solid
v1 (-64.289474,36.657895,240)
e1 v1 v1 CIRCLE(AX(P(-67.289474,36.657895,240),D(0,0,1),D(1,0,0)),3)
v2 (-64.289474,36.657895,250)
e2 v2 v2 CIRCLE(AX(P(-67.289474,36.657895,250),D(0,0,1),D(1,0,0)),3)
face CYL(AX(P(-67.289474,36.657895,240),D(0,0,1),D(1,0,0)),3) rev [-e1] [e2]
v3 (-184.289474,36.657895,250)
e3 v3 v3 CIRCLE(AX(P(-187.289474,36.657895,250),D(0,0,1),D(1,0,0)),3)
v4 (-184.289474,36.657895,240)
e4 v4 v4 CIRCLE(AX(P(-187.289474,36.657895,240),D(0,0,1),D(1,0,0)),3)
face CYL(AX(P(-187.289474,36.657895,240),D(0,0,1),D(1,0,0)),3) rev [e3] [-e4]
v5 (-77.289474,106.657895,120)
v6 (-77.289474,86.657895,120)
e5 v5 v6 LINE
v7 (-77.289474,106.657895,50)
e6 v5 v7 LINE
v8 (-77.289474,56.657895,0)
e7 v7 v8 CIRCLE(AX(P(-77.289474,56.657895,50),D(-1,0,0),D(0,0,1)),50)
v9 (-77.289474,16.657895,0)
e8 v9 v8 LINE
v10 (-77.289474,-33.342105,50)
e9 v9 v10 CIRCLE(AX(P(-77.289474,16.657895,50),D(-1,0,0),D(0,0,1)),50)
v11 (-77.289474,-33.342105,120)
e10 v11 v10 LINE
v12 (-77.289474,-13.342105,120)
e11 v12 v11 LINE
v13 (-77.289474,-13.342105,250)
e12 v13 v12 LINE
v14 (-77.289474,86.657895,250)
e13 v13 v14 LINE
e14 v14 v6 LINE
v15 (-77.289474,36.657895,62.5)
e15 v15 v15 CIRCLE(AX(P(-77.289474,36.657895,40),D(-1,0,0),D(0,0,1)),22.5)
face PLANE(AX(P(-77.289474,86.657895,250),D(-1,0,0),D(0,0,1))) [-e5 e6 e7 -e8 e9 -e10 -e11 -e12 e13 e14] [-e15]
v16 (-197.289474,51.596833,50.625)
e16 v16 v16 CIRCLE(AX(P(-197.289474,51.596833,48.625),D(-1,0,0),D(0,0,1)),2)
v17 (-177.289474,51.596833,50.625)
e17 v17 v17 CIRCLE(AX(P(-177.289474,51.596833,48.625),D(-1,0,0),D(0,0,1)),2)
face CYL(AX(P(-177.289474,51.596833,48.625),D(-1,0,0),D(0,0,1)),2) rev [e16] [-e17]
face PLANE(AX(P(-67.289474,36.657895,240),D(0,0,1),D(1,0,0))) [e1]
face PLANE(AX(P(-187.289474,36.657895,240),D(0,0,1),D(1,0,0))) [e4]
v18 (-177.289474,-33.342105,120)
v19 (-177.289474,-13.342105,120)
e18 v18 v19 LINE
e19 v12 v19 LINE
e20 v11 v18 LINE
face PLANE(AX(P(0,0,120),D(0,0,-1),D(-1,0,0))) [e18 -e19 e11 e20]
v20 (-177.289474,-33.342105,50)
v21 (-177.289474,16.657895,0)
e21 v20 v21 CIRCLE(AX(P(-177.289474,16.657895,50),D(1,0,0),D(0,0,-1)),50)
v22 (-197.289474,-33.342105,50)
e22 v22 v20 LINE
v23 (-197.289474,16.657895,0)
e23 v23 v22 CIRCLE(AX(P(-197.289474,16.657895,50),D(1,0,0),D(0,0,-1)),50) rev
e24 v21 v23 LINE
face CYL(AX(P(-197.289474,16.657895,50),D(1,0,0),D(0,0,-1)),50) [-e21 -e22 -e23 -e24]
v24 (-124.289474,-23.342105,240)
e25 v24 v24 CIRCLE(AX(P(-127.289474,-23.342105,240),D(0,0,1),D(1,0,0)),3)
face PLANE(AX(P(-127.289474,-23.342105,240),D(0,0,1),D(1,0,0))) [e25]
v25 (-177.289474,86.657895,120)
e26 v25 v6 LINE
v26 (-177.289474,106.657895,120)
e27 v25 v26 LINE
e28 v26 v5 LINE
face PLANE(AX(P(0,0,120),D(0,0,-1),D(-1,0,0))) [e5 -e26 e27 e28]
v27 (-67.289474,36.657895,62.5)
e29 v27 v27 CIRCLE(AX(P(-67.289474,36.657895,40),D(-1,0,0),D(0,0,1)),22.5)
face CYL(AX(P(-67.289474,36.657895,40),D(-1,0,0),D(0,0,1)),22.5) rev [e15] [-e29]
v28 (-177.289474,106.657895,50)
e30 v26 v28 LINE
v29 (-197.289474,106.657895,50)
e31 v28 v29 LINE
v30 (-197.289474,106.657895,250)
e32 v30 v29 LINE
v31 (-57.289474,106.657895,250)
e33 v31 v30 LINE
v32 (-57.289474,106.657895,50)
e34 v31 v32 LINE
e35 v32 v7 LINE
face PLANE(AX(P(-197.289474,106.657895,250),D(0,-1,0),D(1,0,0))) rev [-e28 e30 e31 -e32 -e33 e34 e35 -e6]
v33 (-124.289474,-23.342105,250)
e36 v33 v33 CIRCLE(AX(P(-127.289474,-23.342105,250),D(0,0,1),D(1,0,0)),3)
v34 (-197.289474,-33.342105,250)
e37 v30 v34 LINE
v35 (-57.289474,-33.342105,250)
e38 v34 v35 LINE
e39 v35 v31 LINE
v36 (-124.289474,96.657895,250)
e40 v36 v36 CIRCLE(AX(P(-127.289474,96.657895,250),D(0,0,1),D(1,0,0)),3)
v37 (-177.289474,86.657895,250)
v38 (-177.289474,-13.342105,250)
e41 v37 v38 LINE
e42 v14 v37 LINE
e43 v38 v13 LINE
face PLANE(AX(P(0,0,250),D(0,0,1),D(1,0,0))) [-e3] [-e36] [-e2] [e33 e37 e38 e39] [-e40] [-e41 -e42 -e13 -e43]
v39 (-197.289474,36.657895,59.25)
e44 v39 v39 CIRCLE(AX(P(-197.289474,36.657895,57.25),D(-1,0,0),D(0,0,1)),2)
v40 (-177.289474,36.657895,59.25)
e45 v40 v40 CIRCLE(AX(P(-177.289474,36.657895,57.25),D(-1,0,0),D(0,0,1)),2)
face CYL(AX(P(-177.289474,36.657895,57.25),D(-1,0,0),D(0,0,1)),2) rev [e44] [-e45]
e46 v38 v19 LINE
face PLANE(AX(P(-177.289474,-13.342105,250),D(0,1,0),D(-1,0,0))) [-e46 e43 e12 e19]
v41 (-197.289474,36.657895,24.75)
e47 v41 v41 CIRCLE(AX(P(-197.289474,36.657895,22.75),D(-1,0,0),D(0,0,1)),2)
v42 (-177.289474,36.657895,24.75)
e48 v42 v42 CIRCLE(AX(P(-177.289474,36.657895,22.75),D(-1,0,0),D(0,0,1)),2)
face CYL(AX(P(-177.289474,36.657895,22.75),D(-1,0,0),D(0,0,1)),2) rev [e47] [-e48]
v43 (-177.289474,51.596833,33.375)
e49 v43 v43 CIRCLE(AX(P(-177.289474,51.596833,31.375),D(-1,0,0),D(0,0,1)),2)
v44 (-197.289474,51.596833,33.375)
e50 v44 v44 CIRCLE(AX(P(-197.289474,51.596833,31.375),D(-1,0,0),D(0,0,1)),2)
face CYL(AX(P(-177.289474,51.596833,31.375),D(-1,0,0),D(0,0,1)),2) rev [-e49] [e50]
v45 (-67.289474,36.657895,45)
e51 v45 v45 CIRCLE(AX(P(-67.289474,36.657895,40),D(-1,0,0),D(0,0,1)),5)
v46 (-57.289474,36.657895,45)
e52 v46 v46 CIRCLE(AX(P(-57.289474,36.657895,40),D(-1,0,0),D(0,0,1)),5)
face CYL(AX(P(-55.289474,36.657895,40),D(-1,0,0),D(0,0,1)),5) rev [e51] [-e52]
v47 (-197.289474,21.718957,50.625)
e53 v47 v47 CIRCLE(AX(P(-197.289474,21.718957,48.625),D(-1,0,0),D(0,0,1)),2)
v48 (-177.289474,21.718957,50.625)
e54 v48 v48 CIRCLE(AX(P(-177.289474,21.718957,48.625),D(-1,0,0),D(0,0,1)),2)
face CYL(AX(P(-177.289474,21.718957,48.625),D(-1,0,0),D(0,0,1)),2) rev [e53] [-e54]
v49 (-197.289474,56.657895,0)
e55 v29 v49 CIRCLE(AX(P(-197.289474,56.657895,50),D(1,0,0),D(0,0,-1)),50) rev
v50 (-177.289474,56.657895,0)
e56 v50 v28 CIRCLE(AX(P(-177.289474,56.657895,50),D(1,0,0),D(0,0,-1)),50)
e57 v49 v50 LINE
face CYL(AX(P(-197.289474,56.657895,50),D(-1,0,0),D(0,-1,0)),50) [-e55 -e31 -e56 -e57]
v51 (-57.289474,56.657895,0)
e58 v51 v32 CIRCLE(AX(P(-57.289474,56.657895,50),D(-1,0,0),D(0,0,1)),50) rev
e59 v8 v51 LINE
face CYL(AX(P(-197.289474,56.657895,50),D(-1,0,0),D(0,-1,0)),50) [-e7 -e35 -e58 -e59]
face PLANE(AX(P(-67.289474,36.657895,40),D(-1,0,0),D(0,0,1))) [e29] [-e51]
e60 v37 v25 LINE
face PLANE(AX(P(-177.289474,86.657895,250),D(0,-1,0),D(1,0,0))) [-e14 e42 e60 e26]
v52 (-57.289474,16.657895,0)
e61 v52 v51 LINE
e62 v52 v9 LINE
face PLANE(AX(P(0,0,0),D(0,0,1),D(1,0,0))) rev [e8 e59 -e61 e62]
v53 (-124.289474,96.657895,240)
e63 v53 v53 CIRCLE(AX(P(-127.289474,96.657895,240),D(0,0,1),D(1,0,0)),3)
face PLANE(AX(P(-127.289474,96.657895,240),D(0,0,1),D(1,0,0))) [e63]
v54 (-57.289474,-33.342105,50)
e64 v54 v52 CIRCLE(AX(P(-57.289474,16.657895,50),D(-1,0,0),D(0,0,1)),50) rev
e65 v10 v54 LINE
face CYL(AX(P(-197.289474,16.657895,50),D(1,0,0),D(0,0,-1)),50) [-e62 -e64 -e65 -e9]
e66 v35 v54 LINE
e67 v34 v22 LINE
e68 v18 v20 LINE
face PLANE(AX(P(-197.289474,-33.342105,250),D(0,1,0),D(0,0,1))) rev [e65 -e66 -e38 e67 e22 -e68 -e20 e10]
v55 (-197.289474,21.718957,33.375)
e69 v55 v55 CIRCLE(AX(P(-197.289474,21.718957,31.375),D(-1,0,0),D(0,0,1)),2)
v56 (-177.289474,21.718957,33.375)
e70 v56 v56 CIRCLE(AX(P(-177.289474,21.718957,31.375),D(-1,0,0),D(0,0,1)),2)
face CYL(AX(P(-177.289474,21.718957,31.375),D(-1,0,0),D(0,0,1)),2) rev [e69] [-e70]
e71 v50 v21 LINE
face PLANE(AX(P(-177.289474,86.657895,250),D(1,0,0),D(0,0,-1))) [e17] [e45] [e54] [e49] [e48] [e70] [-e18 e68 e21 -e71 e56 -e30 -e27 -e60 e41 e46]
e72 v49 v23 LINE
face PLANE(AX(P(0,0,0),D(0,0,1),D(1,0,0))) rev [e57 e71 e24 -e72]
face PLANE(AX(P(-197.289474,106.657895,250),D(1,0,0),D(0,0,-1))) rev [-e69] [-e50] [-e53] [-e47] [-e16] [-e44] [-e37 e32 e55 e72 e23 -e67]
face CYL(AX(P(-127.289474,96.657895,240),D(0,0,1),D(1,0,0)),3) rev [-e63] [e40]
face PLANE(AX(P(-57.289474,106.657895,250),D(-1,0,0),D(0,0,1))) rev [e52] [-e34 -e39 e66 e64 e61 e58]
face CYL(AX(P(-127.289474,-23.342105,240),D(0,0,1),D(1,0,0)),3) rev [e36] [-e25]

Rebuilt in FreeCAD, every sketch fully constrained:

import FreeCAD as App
import Part
import Sketcher


def edges_at(feature, points):
    """Names of the edges that pass closest to the given points."""
    edges = feature.Shape.Edges
    near = lambda p: min(range(len(edges)), key=lambda i: edges[i].distToShape(Part.Vertex(*p))[0])
    return sorted({f"Edge{near(p) + 1}" for p in points})

doc = App.newDocument("Part")
params = doc.addObject("Spreadsheet::Sheet", "Params")
for row, (alias, value) in enumerate([
    ("sketch1_width", "140 mm"),
    ("sketch1_width2", "100 mm"),
    ("pad1_length", "250 mm"),
    ("sketch2_width", "100 mm"),
    ("sketch2_height", "140 mm"),
    ("pocket1_length", "120 mm"),
    ("sketch3_diameter", "6 mm"),
    ("pocket2_length", "10 mm"),
    ("sketch4_diameter", "4 mm"),
    ("pocket3_length", "20 mm"),
    ("fillet_radius", "50 mm"),
    ("sketch5_diameter", "45 mm"),
    ("pocket4_length", "10 mm"),
    ("sketch6_diameter", "10 mm"),
    ("pocket5_length", "12 mm"),
], start=1):
    params.set(f"A{row}", alias)
    params.set(f"B{row}", "=" + value)
    params.setAlias(f"B{row}", alias)

body = doc.addObject("PartDesign::Body", "Body")

# Sketch on XY plane
sketch1 = doc.addObject("Sketcher::SketchObject", "Sketch")
body.addObject(sketch1)
sketch1.AttachmentSupport = (doc.XY_Plane, [""])
sketch1.MapMode = "FlatFace"
sketch1.addGeometry(Part.LineSegment(App.Vector(-197, 107, 0), App.Vector(-197, -33, 0)), False)
sketch1.addGeometry(Part.LineSegment(App.Vector(-197, -33, 0), App.Vector(-57, -33, 0)), False)
sketch1.addGeometry(Part.LineSegment(App.Vector(-57, -33, 0), App.Vector(-57, 107, 0)), False)
sketch1.addGeometry(Part.LineSegment(App.Vector(-57, 107, 0), App.Vector(-197, 107, 0)), False)
sketch1.addGeometry(Part.LineSegment(App.Vector(-77, -13, 0), App.Vector(-177, -13, 0)), False)
sketch1.addGeometry(Part.LineSegment(App.Vector(-177, -13, 0), App.Vector(-177, 87, 0)), False)
sketch1.addGeometry(Part.LineSegment(App.Vector(-177, 87, 0), App.Vector(-77, 87, 0)), False)
sketch1.addGeometry(Part.LineSegment(App.Vector(-77, 87, 0), App.Vector(-77, -13, 0)), False)
sketch1.addConstraint(Sketcher.Constraint("Coincident", 0, 2, 1, 1))
sketch1.addConstraint(Sketcher.Constraint("Coincident", 1, 2, 2, 1))
sketch1.addConstraint(Sketcher.Constraint("Coincident", 2, 2, 3, 1))
sketch1.addConstraint(Sketcher.Constraint("Coincident", 3, 2, 0, 1))
sketch1.addConstraint(Sketcher.Constraint("Coincident", 4, 2, 5, 1))
sketch1.addConstraint(Sketcher.Constraint("Coincident", 5, 2, 6, 1))
sketch1.addConstraint(Sketcher.Constraint("Coincident", 6, 2, 7, 1))
sketch1.addConstraint(Sketcher.Constraint("Coincident", 7, 2, 4, 1))
sketch1.addConstraint(Sketcher.Constraint("Vertical", 0))
sketch1.addConstraint(Sketcher.Constraint("Horizontal", 1))
sketch1.addConstraint(Sketcher.Constraint("Vertical", 2))
sketch1.addConstraint(Sketcher.Constraint("Horizontal", 3))
sketch1.addConstraint(Sketcher.Constraint("Horizontal", 4))
sketch1.addConstraint(Sketcher.Constraint("Vertical", 5))
sketch1.addConstraint(Sketcher.Constraint("Horizontal", 6))
sketch1.addConstraint(Sketcher.Constraint("Vertical", 7))
sketch1.addConstraint(Sketcher.Constraint("Equal", 3, 0))
sketch1.addConstraint(Sketcher.Constraint("Equal", 6, 5))
sketch1.addConstraint(Sketcher.Constraint("DistanceX", 1, 1, 1, 2, 140.0))
sketch1.addConstraint(Sketcher.Constraint("DistanceX", 4, 2, 4, 1, 100.0))
sketch1.addConstraint(Sketcher.Constraint("DistanceX", 0, 2, 4, 2, 20.0))
sketch1.addConstraint(Sketcher.Constraint("DistanceY", 0, 2, 4, 2, 20.0))
sketch1.addConstraint(Sketcher.Constraint("DistanceX", 0, 2, -1, 1, 197.289474))
sketch1.addConstraint(Sketcher.Constraint("DistanceY", 0, 2, -1, 1, 33.342105))
sketch1.setExpression("Constraints[18]", "Params.sketch1_width")
sketch1.setExpression("Constraints[19]", "Params.sketch1_width2")
pad1 = doc.addObject("PartDesign::Pad", "Pad")
body.addObject(pad1)
pad1.Profile = sketch1
pad1.setExpression("Length", "Params.pad1_length")

# Sketch on XY plane
sketch2 = doc.addObject("Sketcher::SketchObject", "Sketch001")
body.addObject(sketch2)
sketch2.AttachmentSupport = (doc.XY_Plane, [""])
sketch2.MapMode = "FlatFace"
sketch2.addGeometry(Part.LineSegment(App.Vector(-77, 107, 0), App.Vector(-77, -33, 0)), False)
sketch2.addGeometry(Part.LineSegment(App.Vector(-77, -33, 0), App.Vector(-177, -33, 0)), False)
sketch2.addGeometry(Part.LineSegment(App.Vector(-177, -33, 0), App.Vector(-177, 107, 0)), False)
sketch2.addGeometry(Part.LineSegment(App.Vector(-177, 107, 0), App.Vector(-77, 107, 0)), False)
sketch2.addConstraint(Sketcher.Constraint("Coincident", 0, 2, 1, 1))
sketch2.addConstraint(Sketcher.Constraint("Coincident", 1, 2, 2, 1))
sketch2.addConstraint(Sketcher.Constraint("Coincident", 2, 2, 3, 1))
sketch2.addConstraint(Sketcher.Constraint("Coincident", 3, 2, 0, 1))
sketch2.addConstraint(Sketcher.Constraint("Vertical", 0))
sketch2.addConstraint(Sketcher.Constraint("Horizontal", 1))
sketch2.addConstraint(Sketcher.Constraint("Vertical", 2))
sketch2.addConstraint(Sketcher.Constraint("Horizontal", 3))
sketch2.addConstraint(Sketcher.Constraint("DistanceX", 1, 2, 1, 1, 100.0))
sketch2.addConstraint(Sketcher.Constraint("DistanceY", 0, 2, 0, 1, 140.0))
sketch2.addConstraint(Sketcher.Constraint("DistanceX", 0, 2, -1, 1, 77.289474))
sketch2.addConstraint(Sketcher.Constraint("DistanceY", 0, 2, -1, 1, 33.342105))
sketch2.setExpression("Constraints[8]", "Params.sketch2_width")
sketch2.setExpression("Constraints[9]", "Params.sketch2_height")
pocket1 = doc.addObject("PartDesign::Pocket", "Pocket")
body.addObject(pocket1)
pocket1.Profile = sketch2
pocket1.setExpression("Length", "Params.pocket1_length")
pocket1.Reversed = True

# Sketch on XY plane
sketch3 = doc.addObject("Sketcher::SketchObject", "Sketch002")
body.addObject(sketch3)
sketch3.AttachmentSupport = (doc.XY_Plane, [""])
sketch3.MapMode = "FlatFace"
sketch3.AttachmentOffset = App.Placement(App.Vector(0, 0, 250), App.Rotation())
sketch3.addGeometry(Part.Circle(App.Vector(-127.3, 36.7, 0), App.Vector(0, 0, 1), 15.7), False)
sketch3.addGeometry(Part.Circle(App.Vector(-187.3, 36.7, 0), App.Vector(0, 0, 1), 3), False)
sketch3.addGeometry(Part.Circle(App.Vector(-127.3, 96.7, 0), App.Vector(0, 0, 1), 3), False)
sketch3.addGeometry(Part.Circle(App.Vector(-67.3, 36.7, 0), App.Vector(0, 0, 1), 3), False)
sketch3.addGeometry(Part.Circle(App.Vector(-127.3, -23.3, 0), App.Vector(0, 0, 1), 3), False)
sketch3.addConstraint(Sketcher.Constraint("Equal", 1, 2))
sketch3.addConstraint(Sketcher.Constraint("Equal", 2, 3))
sketch3.addConstraint(Sketcher.Constraint("Equal", 3, 4))
sketch3.addConstraint(Sketcher.Constraint("Horizontal", 0, 3, 1, 3))
sketch3.addConstraint(Sketcher.Constraint("Horizontal", 1, 3, 3, 3))
sketch3.addConstraint(Sketcher.Constraint("Vertical", 0, 3, 2, 3))
sketch3.addConstraint(Sketcher.Constraint("Vertical", 2, 3, 4, 3))
sketch3.addConstraint(Sketcher.Constraint("Diameter", 1, 6.0))
sketch3.addConstraint(Sketcher.Constraint("DistanceX", 1, 3, 0, 3, 60.0))
sketch3.addConstraint(Sketcher.Constraint("DistanceY", 0, 3, 2, 3, 60.0))
sketch3.addConstraint(Sketcher.Constraint("DistanceX", 0, 3, 3, 3, 60.0))
sketch3.addConstraint(Sketcher.Constraint("DistanceY", 4, 3, 0, 3, 60.0))
sketch3.addConstraint(Sketcher.Constraint("Diameter", 0, 31.408742))
sketch3.addConstraint(Sketcher.Constraint("DistanceX", 0, 3, -1, 1, 127.289474))
sketch3.addConstraint(Sketcher.Constraint("DistanceY", -1, 1, 0, 3, 36.657895))
sketch3.setExpression("Constraints[7]", "Params.sketch3_diameter")
pocket2 = doc.addObject("PartDesign::Pocket", "Pocket001")
body.addObject(pocket2)
pocket2.Profile = sketch3
pocket2.setExpression("Length", "Params.pocket2_length")

# Sketch on YZ plane
sketch4 = doc.addObject("Sketcher::SketchObject", "Sketch003")
body.addObject(sketch4)
sketch4.AttachmentSupport = (doc.YZ_Plane, [""])
sketch4.MapMode = "FlatFace"
sketch4.AttachmentOffset = App.Placement(App.Vector(0, 0, -197.289474), App.Rotation())
sketch4.addGeometry(Part.Circle(App.Vector(36.7, 22.8, 0), App.Vector(0, 0, 1), 2), False)
sketch4.addGeometry(Part.Circle(App.Vector(51.6, 31.4, 0), App.Vector(0, 0, 1), 2), False)
sketch4.addGeometry(Part.Circle(App.Vector(51.6, 48.6, 0), App.Vector(0, 0, 1), 2), False)
sketch4.addGeometry(Part.Circle(App.Vector(36.7, 57.2, 0), App.Vector(0, 0, 1), 2), False)
sketch4.addGeometry(Part.Circle(App.Vector(21.7, 48.6, 0), App.Vector(0, 0, 1), 2), False)
sketch4.addGeometry(Part.Circle(App.Vector(21.7, 31.4, 0), App.Vector(0, 0, 1), 2), False)
sketch4.addConstraint(Sketcher.Constraint("Equal", 0, 1))
sketch4.addConstraint(Sketcher.Constraint("Equal", 1, 2))
sketch4.addConstraint(Sketcher.Constraint("Equal", 2, 3))
sketch4.addConstraint(Sketcher.Constraint("Equal", 3, 4))
sketch4.addConstraint(Sketcher.Constraint("Equal", 4, 5))
sketch4.addConstraint(Sketcher.Constraint("Horizontal", 2, 3, 4, 3))
sketch4.addConstraint(Sketcher.Constraint("Horizontal", 1, 3, 5, 3))
sketch4.addConstraint(Sketcher.Constraint("Vertical", 1, 3, 2, 3))
sketch4.addConstraint(Sketcher.Constraint("Vertical", 0, 3, 3, 3))
sketch4.addConstraint(Sketcher.Constraint("Vertical", 4, 3, 5, 3))
sketch4.addConstraint(Sketcher.Constraint("Diameter", 0, 4.0))
sketch4.addConstraint(Sketcher.Constraint("DistanceY", 0, 3, 3, 3, 34.5))
sketch4.addConstraint(Sketcher.Constraint("DistanceY", -1, 1, 0, 3, 22.75))
sketch4.addConstraint(Sketcher.Constraint("DistanceY", 1, 3, 2, 3, 17.25))
sketch4.addConstraint(Sketcher.Constraint("DistanceY", -1, 1, 1, 3, 31.375))
sketch4.addConstraint(Sketcher.Constraint("DistanceX", 0, 3, 1, 3, 14.938938))
sketch4.addConstraint(Sketcher.Constraint("DistanceX", 4, 3, 3, 3, 14.938938))
sketch4.addConstraint(Sketcher.Constraint("DistanceX", -1, 1, 0, 3, 36.657895))
sketch4.setExpression("Constraints[10]", "Params.sketch4_diameter")
pocket3 = doc.addObject("PartDesign::Pocket", "Pocket002")
body.addObject(pocket3)
pocket3.Profile = sketch4
pocket3.setExpression("Length", "Params.pocket3_length")
pocket3.Reversed = True
doc.recompute()

fillet = doc.addObject("PartDesign::Fillet", "Fillet")
body.addObject(fillet)
fillet.Base = (pocket3, edges_at(pocket3, [
    (-67.289, -33.342, 0),
    (-187.289, 106.658, 0),
    (-187.289, -33.342, 0),
    (-67.289, 106.658, 0),
]))
fillet.setExpression("Radius", "Params.fillet_radius")

# Sketch on YZ plane
sketch5 = doc.addObject("Sketcher::SketchObject", "Sketch004")
body.addObject(sketch5)
sketch5.AttachmentSupport = (doc.YZ_Plane, [""])
sketch5.MapMode = "FlatFace"
sketch5.AttachmentOffset = App.Placement(App.Vector(0, 0, -77.289474), App.Rotation())
sketch5.addGeometry(Part.Circle(App.Vector(37, 40, 0), App.Vector(0, 0, 1), 22), False)
sketch5.addConstraint(Sketcher.Constraint("Diameter", 0, 45.0))
sketch5.addConstraint(Sketcher.Constraint("DistanceY", -1, 1, 0, 3, 40.0))
sketch5.addConstraint(Sketcher.Constraint("DistanceX", -1, 1, 0, 3, 36.657895))
sketch5.setExpression("Constraints[0]", "Params.sketch5_diameter")
pocket4 = doc.addObject("PartDesign::Pocket", "Pocket003")
body.addObject(pocket4)
pocket4.Profile = sketch5
pocket4.setExpression("Length", "Params.pocket4_length")
pocket4.Reversed = True

# Sketch on YZ plane
sketch6 = doc.addObject("Sketcher::SketchObject", "Sketch005")
body.addObject(sketch6)
sketch6.AttachmentSupport = (doc.YZ_Plane, [""])
sketch6.MapMode = "FlatFace"
sketch6.AttachmentOffset = App.Placement(App.Vector(0, 0, -67.289474), App.Rotation())
sketch6.addGeometry(Part.Circle(App.Vector(37, 40, 0), App.Vector(0, 0, 1), 5), False)
sketch6.addConstraint(Sketcher.Constraint("Diameter", 0, 10.0))
sketch6.addConstraint(Sketcher.Constraint("DistanceY", -1, 1, 0, 3, 40.0))
sketch6.addConstraint(Sketcher.Constraint("DistanceX", -1, 1, 0, 3, 36.657895))
sketch6.setExpression("Constraints[0]", "Params.sketch6_diameter")
pocket5 = doc.addObject("PartDesign::Pocket", "Pocket004")
body.addObject(pocket5)
pocket5.Profile = sketch6
pocket5.setExpression("Length", "Params.pocket5_length")
pocket5.Reversed = True

doc.recompute()
